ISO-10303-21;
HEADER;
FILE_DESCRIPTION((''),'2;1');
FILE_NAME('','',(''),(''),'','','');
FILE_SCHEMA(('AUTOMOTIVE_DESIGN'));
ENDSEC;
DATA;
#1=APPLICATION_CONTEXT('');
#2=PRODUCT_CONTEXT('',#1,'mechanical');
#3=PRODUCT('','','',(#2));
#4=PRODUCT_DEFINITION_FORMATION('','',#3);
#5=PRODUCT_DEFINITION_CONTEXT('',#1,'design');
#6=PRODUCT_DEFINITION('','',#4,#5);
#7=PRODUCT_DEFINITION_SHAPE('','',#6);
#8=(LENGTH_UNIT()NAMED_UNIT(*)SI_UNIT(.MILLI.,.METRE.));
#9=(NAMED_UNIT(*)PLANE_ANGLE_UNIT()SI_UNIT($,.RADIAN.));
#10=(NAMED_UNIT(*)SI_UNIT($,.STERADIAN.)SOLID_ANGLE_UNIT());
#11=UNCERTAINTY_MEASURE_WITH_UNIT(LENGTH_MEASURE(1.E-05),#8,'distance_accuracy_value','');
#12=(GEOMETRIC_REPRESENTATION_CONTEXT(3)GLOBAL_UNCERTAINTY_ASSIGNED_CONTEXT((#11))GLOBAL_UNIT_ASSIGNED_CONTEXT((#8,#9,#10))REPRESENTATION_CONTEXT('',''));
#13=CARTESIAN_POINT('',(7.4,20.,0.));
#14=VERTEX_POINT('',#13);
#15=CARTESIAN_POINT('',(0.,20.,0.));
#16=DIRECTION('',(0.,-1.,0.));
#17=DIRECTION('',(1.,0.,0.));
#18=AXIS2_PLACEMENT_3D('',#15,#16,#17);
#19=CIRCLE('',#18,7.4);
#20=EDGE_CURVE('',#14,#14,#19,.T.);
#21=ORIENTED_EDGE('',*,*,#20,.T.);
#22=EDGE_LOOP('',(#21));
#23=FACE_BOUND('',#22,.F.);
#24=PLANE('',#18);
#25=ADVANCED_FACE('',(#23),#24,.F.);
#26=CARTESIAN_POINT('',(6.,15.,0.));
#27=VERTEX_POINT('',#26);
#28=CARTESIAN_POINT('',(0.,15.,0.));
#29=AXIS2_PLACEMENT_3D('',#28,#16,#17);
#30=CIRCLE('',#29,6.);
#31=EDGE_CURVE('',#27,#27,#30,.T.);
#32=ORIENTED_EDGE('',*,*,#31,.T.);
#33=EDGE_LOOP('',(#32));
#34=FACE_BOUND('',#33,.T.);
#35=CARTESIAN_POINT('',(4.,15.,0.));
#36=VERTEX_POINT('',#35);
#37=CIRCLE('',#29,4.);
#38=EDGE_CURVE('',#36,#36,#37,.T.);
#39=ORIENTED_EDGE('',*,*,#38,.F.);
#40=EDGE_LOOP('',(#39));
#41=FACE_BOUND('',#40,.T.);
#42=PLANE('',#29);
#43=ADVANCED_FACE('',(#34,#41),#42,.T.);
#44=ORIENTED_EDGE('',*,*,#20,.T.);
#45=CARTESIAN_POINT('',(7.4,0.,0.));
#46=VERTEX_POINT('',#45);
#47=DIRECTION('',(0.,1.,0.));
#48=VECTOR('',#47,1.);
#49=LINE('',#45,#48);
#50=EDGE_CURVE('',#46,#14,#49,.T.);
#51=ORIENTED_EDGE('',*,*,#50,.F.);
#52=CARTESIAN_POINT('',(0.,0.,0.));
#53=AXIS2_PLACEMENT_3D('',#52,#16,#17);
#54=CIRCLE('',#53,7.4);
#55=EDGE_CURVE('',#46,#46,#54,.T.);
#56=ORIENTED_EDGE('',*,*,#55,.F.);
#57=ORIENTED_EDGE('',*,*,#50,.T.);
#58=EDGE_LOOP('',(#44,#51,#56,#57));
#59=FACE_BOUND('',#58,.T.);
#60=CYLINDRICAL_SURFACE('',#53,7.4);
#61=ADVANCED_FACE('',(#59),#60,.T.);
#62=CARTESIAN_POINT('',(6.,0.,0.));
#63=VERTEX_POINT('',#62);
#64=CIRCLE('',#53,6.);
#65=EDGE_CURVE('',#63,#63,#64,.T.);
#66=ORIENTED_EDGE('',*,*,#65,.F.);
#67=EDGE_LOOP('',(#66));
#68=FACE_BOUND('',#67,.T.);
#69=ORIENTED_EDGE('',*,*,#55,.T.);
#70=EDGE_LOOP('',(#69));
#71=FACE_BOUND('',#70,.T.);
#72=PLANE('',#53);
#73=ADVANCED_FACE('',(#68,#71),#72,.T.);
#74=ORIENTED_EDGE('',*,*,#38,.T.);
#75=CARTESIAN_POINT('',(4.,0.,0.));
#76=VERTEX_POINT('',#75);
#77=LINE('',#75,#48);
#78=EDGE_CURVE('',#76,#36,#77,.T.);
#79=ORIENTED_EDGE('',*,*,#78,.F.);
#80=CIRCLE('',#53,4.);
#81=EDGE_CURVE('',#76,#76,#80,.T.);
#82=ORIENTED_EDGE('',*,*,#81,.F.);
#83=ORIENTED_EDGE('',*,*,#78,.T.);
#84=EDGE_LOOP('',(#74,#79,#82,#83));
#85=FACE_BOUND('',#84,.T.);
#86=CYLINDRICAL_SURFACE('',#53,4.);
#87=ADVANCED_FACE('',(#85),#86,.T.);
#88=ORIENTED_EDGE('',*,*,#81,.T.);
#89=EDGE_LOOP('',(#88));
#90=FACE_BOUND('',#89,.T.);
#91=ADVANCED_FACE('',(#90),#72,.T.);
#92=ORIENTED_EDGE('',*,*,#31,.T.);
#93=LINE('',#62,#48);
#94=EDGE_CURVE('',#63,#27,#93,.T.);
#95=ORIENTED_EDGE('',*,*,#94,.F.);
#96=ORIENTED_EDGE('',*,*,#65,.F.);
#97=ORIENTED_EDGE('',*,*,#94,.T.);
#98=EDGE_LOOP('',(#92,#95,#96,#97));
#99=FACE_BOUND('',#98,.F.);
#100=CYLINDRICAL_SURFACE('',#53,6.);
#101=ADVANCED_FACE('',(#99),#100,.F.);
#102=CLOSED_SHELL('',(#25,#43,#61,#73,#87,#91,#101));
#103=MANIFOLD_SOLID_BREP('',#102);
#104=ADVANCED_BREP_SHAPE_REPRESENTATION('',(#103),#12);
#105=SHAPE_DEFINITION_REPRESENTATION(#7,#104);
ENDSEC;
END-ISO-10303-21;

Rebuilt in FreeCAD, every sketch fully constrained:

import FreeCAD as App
import Part
import Sketcher
Q = App.Units.Quantity

doc = App.newDocument("Part")
body = doc.addObject("PartDesign::Body", "Body")

# Sketch on XZ plane
sketch1 = doc.addObject("Sketcher::SketchObject", "Sketch")
body.addObject(sketch1)
sketch1.AttachmentSupport = (doc.XZ_Plane, [""])
sketch1.MapMode = "FlatFace"
sketch1.addGeometry(Part.Circle(App.Vector(0, 0, 0), App.Vector(0, 0, 1), 7), False)
sketch1.addConstraint(Sketcher.Constraint("Coincident", 0, 3, -1, 1))
sketch1.addConstraint(Sketcher.Constraint("Diameter", 0, Q("14.8 mm")))
pad1 = doc.addObject("PartDesign::Pad", "Pad")
body.addObject(pad1)
pad1.Profile = sketch1
pad1.Length = 20
pad1.Reversed = True

# Sketch on XZ plane
sketch2 = doc.addObject("Sketcher::SketchObject", "Sketch001")
body.addObject(sketch2)
sketch2.AttachmentSupport = (doc.XZ_Plane, [""])
sketch2.MapMode = "FlatFace"
sketch2.addGeometry(Part.Circle(App.Vector(0, 0, 0), App.Vector(0, 0, 1), 6), False)
sketch2.addGeometry(Part.Circle(App.Vector(0, 0, 0), App.Vector(0, 0, 1), 4), False)
sketch2.addConstraint(Sketcher.Constraint("Coincident", 0, 3, -1, 1))
sketch2.addConstraint(Sketcher.Constraint("Coincident", 1, 3, -1, 1))
sketch2.addConstraint(Sketcher.Constraint("Diameter", 0, Q("12 mm")))
sketch2.addConstraint(Sketcher.Constraint("Diameter", 1, Q("8 mm")))
pocket1 = doc.addObject("PartDesign::Pocket", "Pocket")
body.addObject(pocket1)
pocket1.Profile = sketch2
pocket1.Length = 15

doc.recompute()
